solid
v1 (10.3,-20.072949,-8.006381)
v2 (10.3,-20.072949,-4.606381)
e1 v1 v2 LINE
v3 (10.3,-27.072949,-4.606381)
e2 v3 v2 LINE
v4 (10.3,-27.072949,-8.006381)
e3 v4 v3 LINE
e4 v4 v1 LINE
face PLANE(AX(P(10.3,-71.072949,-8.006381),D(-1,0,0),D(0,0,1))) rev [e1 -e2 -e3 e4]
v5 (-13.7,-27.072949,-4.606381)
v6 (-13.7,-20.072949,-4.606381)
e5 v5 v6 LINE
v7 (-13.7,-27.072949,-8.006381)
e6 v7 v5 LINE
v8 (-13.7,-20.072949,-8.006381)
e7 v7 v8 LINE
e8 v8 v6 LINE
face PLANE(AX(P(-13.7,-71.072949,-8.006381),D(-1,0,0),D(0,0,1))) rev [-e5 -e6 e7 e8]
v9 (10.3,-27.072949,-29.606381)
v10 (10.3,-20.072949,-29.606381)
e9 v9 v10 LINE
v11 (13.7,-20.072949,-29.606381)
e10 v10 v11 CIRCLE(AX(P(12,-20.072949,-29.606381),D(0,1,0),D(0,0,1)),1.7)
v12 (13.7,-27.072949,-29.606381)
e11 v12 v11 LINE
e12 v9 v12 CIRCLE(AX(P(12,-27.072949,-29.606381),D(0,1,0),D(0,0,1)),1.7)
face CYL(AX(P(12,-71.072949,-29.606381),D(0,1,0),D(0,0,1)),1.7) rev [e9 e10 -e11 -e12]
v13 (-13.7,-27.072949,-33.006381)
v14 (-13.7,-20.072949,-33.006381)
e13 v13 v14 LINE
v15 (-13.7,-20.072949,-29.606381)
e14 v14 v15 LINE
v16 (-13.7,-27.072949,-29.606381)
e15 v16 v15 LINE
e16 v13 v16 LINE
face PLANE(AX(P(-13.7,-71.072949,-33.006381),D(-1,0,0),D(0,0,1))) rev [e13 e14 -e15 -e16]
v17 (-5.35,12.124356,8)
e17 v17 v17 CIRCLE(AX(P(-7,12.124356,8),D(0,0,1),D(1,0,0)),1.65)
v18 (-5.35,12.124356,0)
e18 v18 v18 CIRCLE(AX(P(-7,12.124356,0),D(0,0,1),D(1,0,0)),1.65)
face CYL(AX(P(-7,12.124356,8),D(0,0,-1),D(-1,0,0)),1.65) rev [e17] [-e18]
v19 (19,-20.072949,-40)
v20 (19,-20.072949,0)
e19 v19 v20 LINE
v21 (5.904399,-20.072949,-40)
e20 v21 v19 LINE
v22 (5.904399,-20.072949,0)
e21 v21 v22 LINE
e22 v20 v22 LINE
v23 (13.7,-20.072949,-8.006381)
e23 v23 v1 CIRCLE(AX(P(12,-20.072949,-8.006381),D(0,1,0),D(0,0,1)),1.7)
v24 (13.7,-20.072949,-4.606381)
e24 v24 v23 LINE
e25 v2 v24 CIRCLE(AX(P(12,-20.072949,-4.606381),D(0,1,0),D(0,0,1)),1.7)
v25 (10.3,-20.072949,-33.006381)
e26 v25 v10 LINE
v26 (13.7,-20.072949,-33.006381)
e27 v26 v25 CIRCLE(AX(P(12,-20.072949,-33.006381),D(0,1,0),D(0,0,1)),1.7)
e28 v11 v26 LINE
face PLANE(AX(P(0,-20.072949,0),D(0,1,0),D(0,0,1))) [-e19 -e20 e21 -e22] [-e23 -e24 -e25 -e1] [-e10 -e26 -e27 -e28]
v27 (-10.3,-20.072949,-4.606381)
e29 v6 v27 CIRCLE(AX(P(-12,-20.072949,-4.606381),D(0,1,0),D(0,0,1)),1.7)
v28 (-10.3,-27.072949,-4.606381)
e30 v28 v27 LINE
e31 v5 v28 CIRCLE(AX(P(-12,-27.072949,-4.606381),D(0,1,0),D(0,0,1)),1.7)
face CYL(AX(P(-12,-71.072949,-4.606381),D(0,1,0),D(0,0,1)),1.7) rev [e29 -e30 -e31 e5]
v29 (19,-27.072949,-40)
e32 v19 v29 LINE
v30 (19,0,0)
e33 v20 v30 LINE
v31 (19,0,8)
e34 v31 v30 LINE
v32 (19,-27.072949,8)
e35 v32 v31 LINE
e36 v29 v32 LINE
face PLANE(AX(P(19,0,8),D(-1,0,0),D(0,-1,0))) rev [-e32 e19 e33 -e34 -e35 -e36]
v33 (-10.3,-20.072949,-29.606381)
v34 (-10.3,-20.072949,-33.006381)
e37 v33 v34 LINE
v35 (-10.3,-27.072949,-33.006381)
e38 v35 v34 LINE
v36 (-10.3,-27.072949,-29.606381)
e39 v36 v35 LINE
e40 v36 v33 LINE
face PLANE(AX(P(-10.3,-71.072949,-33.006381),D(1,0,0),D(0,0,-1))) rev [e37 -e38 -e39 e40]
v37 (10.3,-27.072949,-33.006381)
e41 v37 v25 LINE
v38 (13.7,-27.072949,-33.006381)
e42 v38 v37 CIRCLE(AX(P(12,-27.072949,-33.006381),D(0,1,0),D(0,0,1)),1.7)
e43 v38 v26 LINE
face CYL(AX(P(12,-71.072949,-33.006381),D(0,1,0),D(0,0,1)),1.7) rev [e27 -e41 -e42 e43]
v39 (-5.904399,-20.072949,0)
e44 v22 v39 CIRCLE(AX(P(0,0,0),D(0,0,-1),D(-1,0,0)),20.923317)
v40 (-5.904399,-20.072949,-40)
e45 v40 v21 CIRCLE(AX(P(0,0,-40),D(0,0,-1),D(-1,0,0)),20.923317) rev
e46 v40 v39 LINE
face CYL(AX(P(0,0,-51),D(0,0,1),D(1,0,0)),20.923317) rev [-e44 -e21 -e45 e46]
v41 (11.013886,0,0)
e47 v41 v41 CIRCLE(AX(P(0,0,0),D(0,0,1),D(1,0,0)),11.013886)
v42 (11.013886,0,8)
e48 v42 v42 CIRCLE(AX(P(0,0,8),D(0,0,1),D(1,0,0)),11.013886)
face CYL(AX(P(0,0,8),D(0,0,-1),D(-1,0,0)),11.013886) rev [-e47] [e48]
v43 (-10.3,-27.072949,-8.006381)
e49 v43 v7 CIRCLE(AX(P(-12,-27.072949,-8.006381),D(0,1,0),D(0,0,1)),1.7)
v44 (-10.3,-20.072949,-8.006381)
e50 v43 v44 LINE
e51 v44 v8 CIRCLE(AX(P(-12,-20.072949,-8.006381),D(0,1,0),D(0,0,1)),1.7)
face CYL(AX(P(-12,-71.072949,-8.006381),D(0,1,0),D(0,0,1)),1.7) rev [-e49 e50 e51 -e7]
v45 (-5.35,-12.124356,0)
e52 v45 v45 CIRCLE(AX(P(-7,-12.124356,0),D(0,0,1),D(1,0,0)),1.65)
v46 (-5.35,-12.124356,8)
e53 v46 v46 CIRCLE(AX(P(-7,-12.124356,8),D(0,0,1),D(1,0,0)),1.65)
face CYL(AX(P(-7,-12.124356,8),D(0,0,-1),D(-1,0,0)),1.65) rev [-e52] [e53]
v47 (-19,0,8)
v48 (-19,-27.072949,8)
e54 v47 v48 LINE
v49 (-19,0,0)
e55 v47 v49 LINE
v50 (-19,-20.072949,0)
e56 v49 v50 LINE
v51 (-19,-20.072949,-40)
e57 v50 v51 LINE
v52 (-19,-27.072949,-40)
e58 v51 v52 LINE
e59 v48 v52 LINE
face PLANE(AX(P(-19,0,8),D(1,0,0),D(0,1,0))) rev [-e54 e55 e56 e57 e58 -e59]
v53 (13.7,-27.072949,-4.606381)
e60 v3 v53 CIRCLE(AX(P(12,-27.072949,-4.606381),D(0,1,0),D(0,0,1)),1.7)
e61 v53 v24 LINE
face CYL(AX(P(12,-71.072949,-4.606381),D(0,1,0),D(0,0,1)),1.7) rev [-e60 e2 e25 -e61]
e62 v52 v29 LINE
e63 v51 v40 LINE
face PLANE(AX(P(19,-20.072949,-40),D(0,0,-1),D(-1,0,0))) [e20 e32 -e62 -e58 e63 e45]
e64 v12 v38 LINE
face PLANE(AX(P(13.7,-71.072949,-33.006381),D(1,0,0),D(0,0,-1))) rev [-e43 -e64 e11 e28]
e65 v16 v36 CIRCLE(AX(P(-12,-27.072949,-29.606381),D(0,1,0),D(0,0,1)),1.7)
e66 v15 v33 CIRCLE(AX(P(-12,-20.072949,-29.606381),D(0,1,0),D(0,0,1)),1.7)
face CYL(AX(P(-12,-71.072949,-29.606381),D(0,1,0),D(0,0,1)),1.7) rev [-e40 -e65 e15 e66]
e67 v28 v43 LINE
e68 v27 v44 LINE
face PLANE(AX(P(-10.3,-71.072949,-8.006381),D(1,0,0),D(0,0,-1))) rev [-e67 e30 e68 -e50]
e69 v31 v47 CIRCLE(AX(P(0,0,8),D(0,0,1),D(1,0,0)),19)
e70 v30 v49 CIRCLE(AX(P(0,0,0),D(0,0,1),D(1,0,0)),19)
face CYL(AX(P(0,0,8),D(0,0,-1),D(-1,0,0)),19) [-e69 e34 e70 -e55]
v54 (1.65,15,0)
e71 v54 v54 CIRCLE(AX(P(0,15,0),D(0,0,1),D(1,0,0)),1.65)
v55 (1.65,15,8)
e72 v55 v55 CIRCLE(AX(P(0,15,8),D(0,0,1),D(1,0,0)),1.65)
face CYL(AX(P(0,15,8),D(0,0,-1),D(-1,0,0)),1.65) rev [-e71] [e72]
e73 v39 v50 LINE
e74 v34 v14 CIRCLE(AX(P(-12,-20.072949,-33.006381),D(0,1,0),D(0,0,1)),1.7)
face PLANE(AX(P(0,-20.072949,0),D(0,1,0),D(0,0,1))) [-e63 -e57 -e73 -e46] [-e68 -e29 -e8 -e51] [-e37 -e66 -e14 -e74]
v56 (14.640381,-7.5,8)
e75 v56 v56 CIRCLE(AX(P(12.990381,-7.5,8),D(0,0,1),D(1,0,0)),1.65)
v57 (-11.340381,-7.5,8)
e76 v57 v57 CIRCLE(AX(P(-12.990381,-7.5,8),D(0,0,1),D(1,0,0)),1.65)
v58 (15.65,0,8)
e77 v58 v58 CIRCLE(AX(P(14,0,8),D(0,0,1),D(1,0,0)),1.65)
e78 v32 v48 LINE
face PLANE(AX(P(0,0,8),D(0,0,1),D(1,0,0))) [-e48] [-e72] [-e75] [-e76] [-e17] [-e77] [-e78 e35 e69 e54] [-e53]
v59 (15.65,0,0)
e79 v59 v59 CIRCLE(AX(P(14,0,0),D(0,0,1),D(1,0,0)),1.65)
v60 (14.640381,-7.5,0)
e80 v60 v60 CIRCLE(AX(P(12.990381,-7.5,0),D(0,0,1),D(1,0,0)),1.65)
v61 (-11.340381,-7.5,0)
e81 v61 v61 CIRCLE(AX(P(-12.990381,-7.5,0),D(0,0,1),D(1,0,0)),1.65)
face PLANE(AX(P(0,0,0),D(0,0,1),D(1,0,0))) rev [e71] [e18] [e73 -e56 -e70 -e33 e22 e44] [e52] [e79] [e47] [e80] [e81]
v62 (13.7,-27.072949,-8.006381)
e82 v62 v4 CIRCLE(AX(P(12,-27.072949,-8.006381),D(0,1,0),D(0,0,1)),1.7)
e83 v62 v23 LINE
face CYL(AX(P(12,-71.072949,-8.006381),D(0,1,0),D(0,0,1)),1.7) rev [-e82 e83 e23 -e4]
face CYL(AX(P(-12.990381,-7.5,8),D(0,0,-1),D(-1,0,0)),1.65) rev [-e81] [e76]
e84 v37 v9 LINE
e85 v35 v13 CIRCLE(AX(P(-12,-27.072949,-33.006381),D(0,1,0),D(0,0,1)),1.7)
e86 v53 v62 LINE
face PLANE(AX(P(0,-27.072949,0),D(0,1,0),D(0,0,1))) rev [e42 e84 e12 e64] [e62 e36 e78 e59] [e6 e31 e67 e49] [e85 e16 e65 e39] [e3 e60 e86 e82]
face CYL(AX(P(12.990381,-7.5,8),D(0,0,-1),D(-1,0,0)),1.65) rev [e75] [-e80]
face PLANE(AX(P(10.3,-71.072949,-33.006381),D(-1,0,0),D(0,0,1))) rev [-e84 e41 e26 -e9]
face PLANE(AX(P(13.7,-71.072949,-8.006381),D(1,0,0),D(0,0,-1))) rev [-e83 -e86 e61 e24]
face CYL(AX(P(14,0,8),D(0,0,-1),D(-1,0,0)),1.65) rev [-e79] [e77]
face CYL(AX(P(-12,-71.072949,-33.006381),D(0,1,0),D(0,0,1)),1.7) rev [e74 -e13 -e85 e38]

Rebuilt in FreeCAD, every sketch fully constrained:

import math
import FreeCAD as App
import Part
import Sketcher
Q = App.Units.Quantity


def add_polygon(sketch, points):
    """Adds a closed chain of lines whose ends are joined by coincident constraints."""
    first, n = sketch.GeometryCount, len(points)
    for a, b in zip(points, points[1:] + points[:1]):
        sketch.addGeometry(Part.LineSegment(App.Vector(*a, 0), App.Vector(*b, 0)), False)
    for i in range(n):
        sketch.addConstraint(Sketcher.Constraint("Coincident", first + i, 2, first + (i + 1) % n, 1))

doc = App.newDocument("Part")
params = doc.addObject("Spreadsheet::Sheet", "Params")
for row, (alias, value) in enumerate([
    ("sketch1_radius", "19 mm"),
    ("sketch1_diameter", "3.3 mm"),
    ("pad1_length", "8 mm"),
    ("sketch2_width", "38 mm"),
    ("sketch2_height", "48 mm"),
    ("pad2_length", "5 mm"),
    ("pad2_length2", "2 mm"),
    ("pocket1_length", "51 mm"),
    ("sketch4_radius", "1.7 mm"),
    ("sketch4_height", "3.4 mm"),
    ("pocket2_length", "51 mm"),
], start=1):
    params.set(f"A{row}", alias)
    params.set(f"B{row}", "=" + value)
    params.setAlias(f"B{row}", alias)

body = doc.addObject("PartDesign::Body", "Body")

sketch1 = body.newObject("Sketcher::SketchObject", "Sketch")
sketch1.AttachmentSupport = (doc.getObject("XY_Plane"), [""])
sketch1.MapMode = "FlatFace"
sketch1.addGeometry([
    Part.LineSegment(App.Vector(-19, 0, 0), App.Vector(-19, -22.1, 0)),
    Part.LineSegment(App.Vector(-19, -22.1, 0), App.Vector(19, -22.1, 0)),
    Part.LineSegment(App.Vector(19, -22.1, 0), App.Vector(19, 0, 0)),
    Part.ArcOfCircle(Part.Circle(App.Vector(0, 0, 0), App.Vector(0, 0, 1), 19), math.radians(0), math.radians(180)),
    Part.Circle(App.Vector(13, -7.5, 0), App.Vector(0, 0, 1), 1.6),
    Part.Circle(App.Vector(14, 0, 0), App.Vector(0, 0, 1), 1.6),
    Part.Circle(App.Vector(-7, -12.1, 0), App.Vector(0, 0, 1), 1.6),
    Part.Circle(App.Vector(-13, -7.5, 0), App.Vector(0, 0, 1), 1.6),
    Part.Circle(App.Vector(0, 0, 0), App.Vector(0, 0, 1), 11),
    Part.Circle(App.Vector(-7, 12.1, 0), App.Vector(0, 0, 1), 1.6),
    Part.Circle(App.Vector(0, 15, 0), App.Vector(0, 0, 1), 1.6),
], False)
sketch1.addConstraint([
    Sketcher.Constraint("Coincident", 0, 2, 1, 1),
    Sketcher.Constraint("Coincident", 1, 2, 2, 1),
    Sketcher.Constraint("Tangent", 2, 2, 3, 1),
    Sketcher.Constraint("Tangent", 3, 2, 0, 1),
    Sketcher.Constraint("Vertical", 0),
    Sketcher.Constraint("Horizontal", 1),
    Sketcher.Constraint("Vertical", 2),
    Sketcher.Constraint("Coincident", 3, 3, -1, 1),
    Sketcher.Constraint("Coincident", 8, 3, -1, 1),
    Sketcher.Constraint("Equal", 4, 5),
    Sketcher.Constraint("Equal", 5, 6),
    Sketcher.Constraint("Equal", 6, 7),
    Sketcher.Constraint("Equal", 7, 9),
    Sketcher.Constraint("Equal", 9, 10),
    Sketcher.Constraint("Symmetric", 4, 3, 7, 3, -2),
    Sketcher.Constraint("Symmetric", 6, 3, 9, 3, -1),
    Sketcher.Constraint("PointOnObject", 5, 3, -1),
    Sketcher.Constraint("PointOnObject", 10, 3, -2),
    Sketcher.Constraint("Radius", 3, Q("19 mm")),
    Sketcher.Constraint("Diameter", 4, Q("3.3 mm")),
    Sketcher.Constraint("DistanceX", -1, 1, 5, 3, Q("14 mm")),
    Sketcher.Constraint("DistanceX", 6, 3, -1, 1, Q("7 mm")),
    Sketcher.Constraint("DistanceY", -1, 1, 10, 3, Q("15 mm")),
    Sketcher.Constraint("DistanceY", 4, 3, -1, 1, Q("7.5 mm")),
    Sketcher.Constraint("Diameter", 8, Q("22.027772 mm")),
    Sketcher.Constraint("DistanceY", 0, 2, 0, 1, Q("22.072949 mm")),
    Sketcher.Constraint("DistanceX", -1, 1, 4, 3, Q("12.990381 mm")),
    Sketcher.Constraint("DistanceY", 6, 3, 9, 3, Q("24.248711 mm")),
])
sketch1.setExpression("Constraints[18]", "Params.sketch1_radius")
sketch1.setExpression("Constraints[19]", "Params.sketch1_diameter")
pad1 = body.newObject("PartDesign::Pad", "Pad")
pad1.Profile = sketch1
pad1.setExpression("Length", "Params.pad1_length")

sketch2 = body.newObject("Sketcher::SketchObject", "Sketch001")
sketch2.AttachmentSupport = (doc.getObject("XZ_Plane"), [""])
sketch2.MapMode = "FlatFace"
sketch2.AttachmentOffset = App.Placement(App.Vector(0, 0, 22.072949), App.Rotation())
add_polygon(sketch2, [(-19, 8), (-19, -40), (19, -40), (19, 8)])
sketch2.addConstraint([
    Sketcher.Constraint("Vertical", 0),
    Sketcher.Constraint("Horizontal", 1),
    Sketcher.Constraint("Vertical", 2),
    Sketcher.Constraint("Horizontal", 3),
    Sketcher.Constraint("DistanceX", 1, 1, 1, 2, Q("38 mm")),
    Sketcher.Constraint("DistanceY", 0, 2, 0, 1, Q("48 mm")),
    Sketcher.Constraint("DistanceX", 0, 2, -1, 1, Q("19 mm")),
    Sketcher.Constraint("DistanceY", 0, 2, -1, 1, Q("40 mm")),
])
sketch2.setExpression("Constraints[8]", "Params.sketch2_width")
sketch2.setExpression("Constraints[9]", "Params.sketch2_height")
pad2 = body.newObject("PartDesign::Pad", "Pad001")
pad2.Profile = sketch2
pad2.Type = "TwoLengths"
pad2.setExpression("Length", "Params.pad2_length")
pad2.setExpression("Length2", "Params.pad2_length2")

sketch3 = body.newObject("Sketcher::SketchObject", "Sketch002")
sketch3.AttachmentSupport = (doc.getObject("XY_Plane"), [""])
sketch3.MapMode = "FlatFace"
sketch3.addGeometry([
    Part.LineSegment(App.Vector(-6, -20, 0), App.Vector(6, -20, 0)),
    Part.ArcOfCircle(Part.Circle(App.Vector(0, 0, 0), App.Vector(0, 0, 1), 21), math.radians(-106), math.radians(-74)),
], False)
sketch3.addConstraint([
    Sketcher.Constraint("Coincident", 0, 1, 1, 1),
    Sketcher.Constraint("Coincident", 1, 2, 0, 2),
    Sketcher.Constraint("Horizontal", 0),
    Sketcher.Constraint("Coincident", 1, 3, -1, 1),
    Sketcher.Constraint("Radius", 1, Q("20.923317 mm")),
    Sketcher.Constraint("DistanceX", 0, 1, -1, 1, Q("5.904399 mm")),
])
pocket1 = body.newObject("PartDesign::Pocket", "Pocket")
pocket1.Profile = sketch3
pocket1.setExpression("Length", "Params.pocket1_length")

sketch4 = body.newObject("Sketcher::SketchObject", "Sketch003")
sketch4.AttachmentSupport = (doc.getObject("XZ_Plane"), [""])
sketch4.MapMode = "FlatFace"
sketch4.AttachmentOffset = App.Placement(App.Vector(0, 0, 20.072949), App.Rotation())
sketch4.addGeometry([
    Part.LineSegment(App.Vector(-13.7, -8, 0), App.Vector(-13.7, -4.6, 0)),
    Part.ArcOfCircle(Part.Circle(App.Vector(-12, -4.6, 0), App.Vector(0, 0, 1), 1.7), math.radians(0), math.radians(180)),
    Part.LineSegment(App.Vector(-10.3, -4.6, 0), App.Vector(-10.3, -8, 0)),
    Part.ArcOfCircle(Part.Circle(App.Vector(-12, -8, 0), App.Vector(0, 0, 1), 1.7), math.radians(180), math.radians(360)),
    Part.LineSegment(App.Vector(-13.7, -33, 0), App.Vector(-13.7, -29.6, 0)),
    Part.ArcOfCircle(Part.Circle(App.Vector(-12, -29.6, 0), App.Vector(0, 0, 1), 1.7), math.radians(0), math.radians(180)),
    Part.LineSegment(App.Vector(-10.3, -29.6, 0), App.Vector(-10.3, -33, 0)),
    Part.ArcOfCircle(Part.Circle(App.Vector(-12, -33, 0), App.Vector(0, 0, 1), 1.7), math.radians(180), math.radians(360)),
    Part.LineSegment(App.Vector(13.7, -29.6, 0), App.Vector(13.7, -33, 0)),
    Part.ArcOfCircle(Part.Circle(App.Vector(12, -33, 0), App.Vector(0, 0, 1), 1.7), math.radians(180), math.radians(360)),
    Part.LineSegment(App.Vector(10.3, -33, 0), App.Vector(10.3, -29.6, 0)),
    Part.ArcOfCircle(Part.Circle(App.Vector(12, -29.6, 0), App.Vector(0, 0, 1), 1.7), math.radians(0), math.radians(180)),
    Part.LineSegment(App.Vector(13.7, -4.6, 0), App.Vector(13.7, -8, 0)),
    Part.ArcOfCircle(Part.Circle(App.Vector(12, -8, 0), App.Vector(0, 0, 1), 1.7), math.radians(180), math.radians(360)),
    Part.LineSegment(App.Vector(10.3, -8, 0), App.Vector(10.3, -4.6, 0)),
    Part.ArcOfCircle(Part.Circle(App.Vector(12, -4.6, 0), App.Vector(0, 0, 1), 1.7), math.radians(0), math.radians(180)),
], False)
sketch4.addConstraint([
    Sketcher.Constraint("Tangent", 0, 2, 1, 2),
    Sketcher.Constraint("Tangent", 1, 1, 2, 1),
    Sketcher.Constraint("Tangent", 2, 2, 3, 2),
    Sketcher.Constraint("Tangent", 3, 1, 0, 1),
    Sketcher.Constraint("Tangent", 4, 2, 5, 2),
    Sketcher.Constraint("Tangent", 5, 1, 6, 1),
    Sketcher.Constraint("Tangent", 6, 2, 7, 2),
    Sketcher.Constraint("Tangent", 7, 1, 4, 1),
    Sketcher.Constraint("Tangent", 8, 2, 9, 2),
    Sketcher.Constraint("Tangent", 9, 1, 10, 1),
    Sketcher.Constraint("Tangent", 10, 2, 11, 2),
    Sketcher.Constraint("Tangent", 11, 1, 8, 1),
    Sketcher.Constraint("Tangent", 12, 2, 13, 2),
    Sketcher.Constraint("Tangent", 13, 1, 14, 1),
    Sketcher.Constraint("Tangent", 14, 2, 15, 2),
    Sketcher.Constraint("Tangent", 15, 1, 12, 1),
    Sketcher.Constraint("Vertical", 0),
    Sketcher.Constraint("Vertical", 2),
    Sketcher.Constraint("Vertical", 4),
    Sketcher.Constraint("Vertical", 6),
    Sketcher.Constraint("Vertical", 8),
    Sketcher.Constraint("Vertical", 10),
    Sketcher.Constraint("Vertical", 12),
    Sketcher.Constraint("Vertical", 14),
    Sketcher.Constraint("Equal", 3, 5),
    Sketcher.Constraint("Equal", 7, 9),
    Sketcher.Constraint("Equal", 11, 13),
    Sketcher.Constraint("Symmetric", 7, 3, 9, 3, -2),
    Sketcher.Constraint("Symmetric", 3, 3, 13, 3, -2),
    Sketcher.Constraint("Horizontal", 5, 3, 11, 3),
    Sketcher.Constraint("Horizontal", 1, 3, 15, 3),
    Sketcher.Constraint("Vertical", 3, 3, 5, 3),
    Sketcher.Constraint("Equal", 2, 4),
    Sketcher.Constraint("Radius", 1, Q("1.7 mm")),
    Sketcher.Constraint("DistanceY", 0, 1, 0, 2, Q("3.4 mm")),
    Sketcher.Constraint("DistanceX", 1, 3, -1, 1, Q("12 mm")),
    Sketcher.Constraint("DistanceY", 5, 3, 1, 3, Q("25 mm")),
    Sketcher.Constraint("DistanceY", 1, 3, -1, 1, Q("4.606381 mm")),
])
sketch4.setExpression("Constraints[33]", "Params.sketch4_radius")
sketch4.setExpression("Constraints[34]", "Params.sketch4_height")
pocket2 = body.newObject("PartDesign::Pocket", "Pocket001")
pocket2.Profile = sketch4
pocket2.setExpression("Length", "Params.pocket2_length")
pocket2.Reversed = True

doc.recompute()
